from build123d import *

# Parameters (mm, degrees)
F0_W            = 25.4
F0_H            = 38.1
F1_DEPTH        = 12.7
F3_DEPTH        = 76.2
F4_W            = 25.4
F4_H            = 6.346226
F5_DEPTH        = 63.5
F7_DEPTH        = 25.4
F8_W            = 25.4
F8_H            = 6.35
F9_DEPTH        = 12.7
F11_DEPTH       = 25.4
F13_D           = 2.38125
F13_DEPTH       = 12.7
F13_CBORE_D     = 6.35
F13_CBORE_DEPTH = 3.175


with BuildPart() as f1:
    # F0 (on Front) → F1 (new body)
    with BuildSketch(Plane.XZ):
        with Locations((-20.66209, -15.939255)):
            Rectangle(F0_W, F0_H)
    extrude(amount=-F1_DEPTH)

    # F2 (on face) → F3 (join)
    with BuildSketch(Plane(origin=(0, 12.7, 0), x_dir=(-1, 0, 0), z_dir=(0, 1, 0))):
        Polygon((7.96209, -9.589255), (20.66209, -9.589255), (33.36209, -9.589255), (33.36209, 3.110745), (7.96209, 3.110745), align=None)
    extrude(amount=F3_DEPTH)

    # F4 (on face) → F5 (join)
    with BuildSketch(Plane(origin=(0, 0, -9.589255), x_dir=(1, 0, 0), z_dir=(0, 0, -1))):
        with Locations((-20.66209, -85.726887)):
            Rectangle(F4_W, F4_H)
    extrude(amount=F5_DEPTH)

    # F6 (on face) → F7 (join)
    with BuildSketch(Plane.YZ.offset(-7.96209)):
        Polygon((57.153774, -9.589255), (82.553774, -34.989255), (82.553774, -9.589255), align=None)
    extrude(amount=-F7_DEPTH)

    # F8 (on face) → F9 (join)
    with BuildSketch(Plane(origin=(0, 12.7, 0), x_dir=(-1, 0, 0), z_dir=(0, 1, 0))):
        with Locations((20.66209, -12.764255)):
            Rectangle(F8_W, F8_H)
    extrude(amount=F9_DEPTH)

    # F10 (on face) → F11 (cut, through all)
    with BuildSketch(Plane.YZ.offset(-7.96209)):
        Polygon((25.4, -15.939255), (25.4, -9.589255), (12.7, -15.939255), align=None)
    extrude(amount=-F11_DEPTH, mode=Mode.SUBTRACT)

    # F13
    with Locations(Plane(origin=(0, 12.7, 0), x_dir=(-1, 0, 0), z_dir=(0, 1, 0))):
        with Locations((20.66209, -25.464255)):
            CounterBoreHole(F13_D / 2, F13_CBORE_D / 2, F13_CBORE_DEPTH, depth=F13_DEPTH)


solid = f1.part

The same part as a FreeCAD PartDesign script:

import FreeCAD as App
import Part
import Sketcher
Q = App.Units.Quantity


def add_polygon(sketch, points):
    """Adds a closed chain of lines whose ends are joined by coincident constraints."""
    first, n = sketch.GeometryCount, len(points)
    for a, b in zip(points, points[1:] + points[:1]):
        sketch.addGeometry(Part.LineSegment(App.Vector(*a, 0), App.Vector(*b, 0)), False)
    for i in range(n):
        sketch.addConstraint(Sketcher.Constraint("Coincident", first + i, 2, first + (i + 1) % n, 1))

doc = App.newDocument("Part")
params = doc.addObject("Spreadsheet::Sheet", "Params")
for row, (alias, value) in enumerate([
    ("sketch1_width", "1 in"),
    ("sketch1_height", "1.5 in"),
    ("pad1_length", "0.5 in"),
    ("sketch2_width", "1 in"),
    ("sketch2_height", "0.5 in"),
    ("pad2_length", "3 in"),
    ("sketch3_width", "1 in"),
    ("pad3_length", "2.5 in"),
    ("sketch4_width", "1 in"),
    ("pad4_length", "1 in"),
    ("sketch5_width", "1 in"),
    ("sketch5_height", "0.25 in"),
    ("pad5_length", "0.5 in"),
    ("sketch6_width", "0.5 in"),
    ("sketch6_height", "0.25 in"),
    ("sketch7_diameter", "0.09375 in"),
    ("hole_diameter", "0.09375 in"),
    ("hole_depth", "0.5 in"),
    ("hole_cbore_diameter", "0.25 in"),
    ("hole_cbore_depth", "0.125 in"),
], start=1):
    params.set(f"A{row}", alias)
    params.set(f"B{row}", "=" + value)
    params.setAlias(f"B{row}", alias)

body = doc.addObject("PartDesign::Body", "Body")

# Sketch on XZ plane
sketch1 = body.newObject("Sketcher::SketchObject", "Sketch")
sketch1.AttachmentSupport = (doc.getObject("XZ_Plane"), [""])
sketch1.MapMode = "FlatFace"
add_polygon(sketch1, [(-33.36209, 3.110745), (-33.36209, -34.989255), (-7.96209, -34.989255), (-7.96209, 3.110745)])  # lines 0-3
sketch1.addConstraint(Sketcher.Constraint("Vertical", 0))
sketch1.addConstraint(Sketcher.Constraint("Horizontal", 1))
sketch1.addConstraint(Sketcher.Constraint("Vertical", 2))
sketch1.addConstraint(Sketcher.Constraint("Horizontal", 3))
sketch1.addConstraint(Sketcher.Constraint("DistanceX", 1, 1, 1, 2, Q("1 in")))
sketch1.addConstraint(Sketcher.Constraint("DistanceY", 0, 2, 0, 1, Q("1.5 in")))
sketch1.addConstraint(Sketcher.Constraint("DistanceX", 0, 2, -1, 1, 33.36209))
sketch1.addConstraint(Sketcher.Constraint("DistanceY", 0, 2, -1, 1, 34.989255))
sketch1.setExpression("Constraints[8]", "Params.sketch1_width")
sketch1.setExpression("Constraints[9]", "Params.sketch1_height")
pad1 = body.newObject("PartDesign::Pad", "Pad")
pad1.Profile = sketch1
pad1.setExpression("Length", "Params.pad1_length")
pad1.Reversed = True

# Sketch on XZ plane
sketch2 = body.newObject("Sketcher::SketchObject", "Sketch001")
sketch2.AttachmentSupport = (doc.getObject("XZ_Plane"), [""])
sketch2.MapMode = "FlatFace"
sketch2.AttachmentOffset = App.Placement(App.Vector(0, 0, -0.5 * 25.4), App.Rotation())
add_polygon(sketch2, [(-7.96209, -9.589255), (-33.36209, -9.589255), (-33.36209, 3.110745), (-7.96209, 3.110745)])  # lines 0-3
sketch2.addConstraint(Sketcher.Constraint("Horizontal", 0))
sketch2.addConstraint(Sketcher.Constraint("Vertical", 1))
sketch2.addConstraint(Sketcher.Constraint("Horizontal", 2))
sketch2.addConstraint(Sketcher.Constraint("Vertical", 3))
sketch2.addConstraint(Sketcher.Constraint("DistanceX", 0, 2, 0, 1, Q("1 in")))
sketch2.addConstraint(Sketcher.Constraint("DistanceY", 1, 1, 1, 2, Q("0.5 in")))
sketch2.addConstraint(Sketcher.Constraint("DistanceX", 0, 2, -1, 1, 33.36209))
sketch2.addConstraint(Sketcher.Constraint("DistanceY", 0, 2, -1, 1, 9.589255))
sketch2.setExpression("Constraints[8]", "Params.sketch2_width")
sketch2.setExpression("Constraints[9]", "Params.sketch2_height")
pad2 = body.newObject("PartDesign::Pad", "Pad001")
pad2.Profile = sketch2
pad2.setExpression("Length", "Params.pad2_length")
pad2.Reversed = True

# Sketch on XY plane
sketch3 = body.newObject("Sketcher::SketchObject", "Sketch002")
sketch3.AttachmentSupport = (doc.getObject("XY_Plane"), [""])
sketch3.MapMode = "FlatFace"
sketch3.AttachmentOffset = App.Placement(App.Vector(0, 0, -9.589255), App.Rotation())
add_polygon(sketch3, [(-33.36209, 82.553774), (-33.36209, 88.9), (-7.96209, 88.9), (-7.96209, 82.553774)])  # lines 0-3
sketch3.addConstraint(Sketcher.Constraint("Vertical", 0))
sketch3.addConstraint(Sketcher.Constraint("Horizontal", 1))
sketch3.addConstraint(Sketcher.Constraint("Vertical", 2))
sketch3.addConstraint(Sketcher.Constraint("Horizontal", 3))
sketch3.addConstraint(Sketcher.Constraint("DistanceX", 1, 1, 1, 2, Q("1 in")))
sketch3.addConstraint(Sketcher.Constraint("DistanceY", -1, 1, 0, 2, Q("3.5 in")))
sketch3.addConstraint(Sketcher.Constraint("DistanceY", 0, 1, 0, 2, 6.346226))
sketch3.addConstraint(Sketcher.Constraint("DistanceX", 0, 2, -1, 1, 33.36209))
sketch3.setExpression("Constraints[8]", "Params.sketch3_width")
pad3 = body.newObject("PartDesign::Pad", "Pad002")
pad3.Profile = sketch3
pad3.setExpression("Length", "Params.pad3_length")
pad3.Reversed = True

# Sketch on YZ plane
sketch4 = body.newObject("Sketcher::SketchObject", "Sketch003")
sketch4.AttachmentSupport = (doc.getObject("YZ_Plane"), [""])
sketch4.MapMode = "FlatFace"
sketch4.AttachmentOffset = App.Placement(App.Vector(0, 0, -7.96209), App.Rotation())
add_polygon(sketch4, [(57.153774, -9.589255), (82.553774, -34.989255), (82.553774, -9.589255)])  # lines 0-2
sketch4.addConstraint(Sketcher.Constraint("Vertical", 1))
sketch4.addConstraint(Sketcher.Constraint("Horizontal", 2))
sketch4.addConstraint(Sketcher.Constraint("Equal", 2, 1))
sketch4.addConstraint(Sketcher.Constraint("DistanceX", 2, 2, 2, 1, Q("1 in")))
sketch4.addConstraint(Sketcher.Constraint("DistanceX", -1, 1, 0, 2, 82.553774))
sketch4.addConstraint(Sketcher.Constraint("DistanceY", 0, 2, -1, 1, 34.989255))
sketch4.setExpression("Constraints[6]", "Params.sketch4_width")
pad4 = body.newObject("PartDesign::Pad", "Pad003")
pad4.Profile = sketch4
pad4.setExpression("Length", "Params.pad4_length")
pad4.Reversed = True

# Sketch on XZ plane
sketch5 = body.newObject("Sketcher::SketchObject", "Sketch004")
sketch5.AttachmentSupport = (doc.getObject("XZ_Plane"), [""])
sketch5.MapMode = "FlatFace"
sketch5.AttachmentOffset = App.Placement(App.Vector(0, 0, -0.5 * 25.4), App.Rotation())
add_polygon(sketch5, [(-7.96209, -9.589255), (-7.96209, -15.939255), (-33.36209, -15.939255), (-33.36209, -9.589255)])  # lines 0-3
sketch5.addConstraint(Sketcher.Constraint("Vertical", 0))
sketch5.addConstraint(Sketcher.Constraint("Horizontal", 1))
sketch5.addConstraint(Sketcher.Constraint("Vertical", 2))
sketch5.addConstraint(Sketcher.Constraint("Horizontal", 3))
sketch5.addConstraint(Sketcher.Constraint("DistanceX", 1, 2, 1, 1, Q("1 in")))
sketch5.addConstraint(Sketcher.Constraint("DistanceY", 0, 2, 0, 1, Q("0.25 in")))
sketch5.addConstraint(Sketcher.Constraint("DistanceX", 0, 2, -1, 1, 7.96209))
sketch5.addConstraint(Sketcher.Constraint("DistanceY", 0, 2, -1, 1, 15.939255))
sketch5.setExpression("Constraints[8]", "Params.sketch5_width")
sketch5.setExpression("Constraints[9]", "Params.sketch5_height")
pad5 = body.newObject("PartDesign::Pad", "Pad004")
pad5.Profile = sketch5
pad5.setExpression("Length", "Params.pad5_length")
pad5.Reversed = True

# Sketch on YZ plane
sketch6 = body.newObject("Sketcher::SketchObject", "Sketch005")
sketch6.AttachmentSupport = (doc.getObject("YZ_Plane"), [""])
sketch6.MapMode = "FlatFace"
sketch6.AttachmentOffset = App.Placement(App.Vector(0, 0, -7.96209), App.Rotation())
add_polygon(sketch6, [(25.4, -15.939255), (25.4, -9.589255), (12.7, -15.939255)])  # lines 0-2
sketch6.addConstraint(Sketcher.Constraint("Vertical", 0))
sketch6.addConstraint(Sketcher.Constraint("Horizontal", 2))
sketch6.addConstraint(Sketcher.Constraint("DistanceX", 2, 1, 2, 2, Q("0.5 in")))
sketch6.addConstraint(Sketcher.Constraint("DistanceX", -1, 1, 0, 2, Q("1 in")))
sketch6.addConstraint(Sketcher.Constraint("DistanceY", 0, 1, 0, 2, Q("0.25 in")))
sketch6.addConstraint(Sketcher.Constraint("DistanceY", 0, 2, -1, 1, 9.589255))
sketch6.setExpression("Constraints[5]", "Params.sketch6_width")
sketch6.setExpression("Constraints[7]", "Params.sketch6_height")
pocket1 = body.newObject("PartDesign::Pocket", "Pocket")
pocket1.Profile = sketch6
pocket1.Type = "ThroughAll"

# Sketch on XZ plane
sketch7 = body.newObject("Sketcher::SketchObject", "Sketch006")
sketch7.AttachmentSupport = (doc.getObject("XZ_Plane"), [""])
sketch7.MapMode = "FlatFace"
sketch7.AttachmentOffset = App.Placement(App.Vector(0, 0, -0.5 * 25.4), App.Rotation())
sketch7.addGeometry(Part.Circle(App.Vector(-20.66209, -25.464255, 0), App.Vector(0, 0, 1), 1.190625), False)
sketch7.addConstraint(Sketcher.Constraint("Diameter", 0, Q("0.09375 in")))
sketch7.addConstraint(Sketcher.Constraint("DistanceX", 0, 3, -1, 1, 20.66209))
sketch7.addConstraint(Sketcher.Constraint("DistanceY", 0, 3, -1, 1, 25.464255))
sketch7.setExpression("Constraints[0]", "Params.sketch7_diameter")
doc.recompute()
hole = body.newObject("PartDesign::Hole", "Hole")
hole.Profile = sketch7
hole.ThreadType = "None"
hole.setExpression("Diameter", "Params.hole_diameter")
hole.DepthType = "Dimension"
hole.setExpression("Depth", "Params.hole_depth")
hole.DrillPoint = "Flat"
hole.HoleCutType = "Counterbore"
hole.setExpression("HoleCutDiameter", "Params.hole_cbore_diameter")
hole.setExpression("HoleCutDepth", "Params.hole_cbore_depth")
hole.Reversed = True

doc.recompute()
